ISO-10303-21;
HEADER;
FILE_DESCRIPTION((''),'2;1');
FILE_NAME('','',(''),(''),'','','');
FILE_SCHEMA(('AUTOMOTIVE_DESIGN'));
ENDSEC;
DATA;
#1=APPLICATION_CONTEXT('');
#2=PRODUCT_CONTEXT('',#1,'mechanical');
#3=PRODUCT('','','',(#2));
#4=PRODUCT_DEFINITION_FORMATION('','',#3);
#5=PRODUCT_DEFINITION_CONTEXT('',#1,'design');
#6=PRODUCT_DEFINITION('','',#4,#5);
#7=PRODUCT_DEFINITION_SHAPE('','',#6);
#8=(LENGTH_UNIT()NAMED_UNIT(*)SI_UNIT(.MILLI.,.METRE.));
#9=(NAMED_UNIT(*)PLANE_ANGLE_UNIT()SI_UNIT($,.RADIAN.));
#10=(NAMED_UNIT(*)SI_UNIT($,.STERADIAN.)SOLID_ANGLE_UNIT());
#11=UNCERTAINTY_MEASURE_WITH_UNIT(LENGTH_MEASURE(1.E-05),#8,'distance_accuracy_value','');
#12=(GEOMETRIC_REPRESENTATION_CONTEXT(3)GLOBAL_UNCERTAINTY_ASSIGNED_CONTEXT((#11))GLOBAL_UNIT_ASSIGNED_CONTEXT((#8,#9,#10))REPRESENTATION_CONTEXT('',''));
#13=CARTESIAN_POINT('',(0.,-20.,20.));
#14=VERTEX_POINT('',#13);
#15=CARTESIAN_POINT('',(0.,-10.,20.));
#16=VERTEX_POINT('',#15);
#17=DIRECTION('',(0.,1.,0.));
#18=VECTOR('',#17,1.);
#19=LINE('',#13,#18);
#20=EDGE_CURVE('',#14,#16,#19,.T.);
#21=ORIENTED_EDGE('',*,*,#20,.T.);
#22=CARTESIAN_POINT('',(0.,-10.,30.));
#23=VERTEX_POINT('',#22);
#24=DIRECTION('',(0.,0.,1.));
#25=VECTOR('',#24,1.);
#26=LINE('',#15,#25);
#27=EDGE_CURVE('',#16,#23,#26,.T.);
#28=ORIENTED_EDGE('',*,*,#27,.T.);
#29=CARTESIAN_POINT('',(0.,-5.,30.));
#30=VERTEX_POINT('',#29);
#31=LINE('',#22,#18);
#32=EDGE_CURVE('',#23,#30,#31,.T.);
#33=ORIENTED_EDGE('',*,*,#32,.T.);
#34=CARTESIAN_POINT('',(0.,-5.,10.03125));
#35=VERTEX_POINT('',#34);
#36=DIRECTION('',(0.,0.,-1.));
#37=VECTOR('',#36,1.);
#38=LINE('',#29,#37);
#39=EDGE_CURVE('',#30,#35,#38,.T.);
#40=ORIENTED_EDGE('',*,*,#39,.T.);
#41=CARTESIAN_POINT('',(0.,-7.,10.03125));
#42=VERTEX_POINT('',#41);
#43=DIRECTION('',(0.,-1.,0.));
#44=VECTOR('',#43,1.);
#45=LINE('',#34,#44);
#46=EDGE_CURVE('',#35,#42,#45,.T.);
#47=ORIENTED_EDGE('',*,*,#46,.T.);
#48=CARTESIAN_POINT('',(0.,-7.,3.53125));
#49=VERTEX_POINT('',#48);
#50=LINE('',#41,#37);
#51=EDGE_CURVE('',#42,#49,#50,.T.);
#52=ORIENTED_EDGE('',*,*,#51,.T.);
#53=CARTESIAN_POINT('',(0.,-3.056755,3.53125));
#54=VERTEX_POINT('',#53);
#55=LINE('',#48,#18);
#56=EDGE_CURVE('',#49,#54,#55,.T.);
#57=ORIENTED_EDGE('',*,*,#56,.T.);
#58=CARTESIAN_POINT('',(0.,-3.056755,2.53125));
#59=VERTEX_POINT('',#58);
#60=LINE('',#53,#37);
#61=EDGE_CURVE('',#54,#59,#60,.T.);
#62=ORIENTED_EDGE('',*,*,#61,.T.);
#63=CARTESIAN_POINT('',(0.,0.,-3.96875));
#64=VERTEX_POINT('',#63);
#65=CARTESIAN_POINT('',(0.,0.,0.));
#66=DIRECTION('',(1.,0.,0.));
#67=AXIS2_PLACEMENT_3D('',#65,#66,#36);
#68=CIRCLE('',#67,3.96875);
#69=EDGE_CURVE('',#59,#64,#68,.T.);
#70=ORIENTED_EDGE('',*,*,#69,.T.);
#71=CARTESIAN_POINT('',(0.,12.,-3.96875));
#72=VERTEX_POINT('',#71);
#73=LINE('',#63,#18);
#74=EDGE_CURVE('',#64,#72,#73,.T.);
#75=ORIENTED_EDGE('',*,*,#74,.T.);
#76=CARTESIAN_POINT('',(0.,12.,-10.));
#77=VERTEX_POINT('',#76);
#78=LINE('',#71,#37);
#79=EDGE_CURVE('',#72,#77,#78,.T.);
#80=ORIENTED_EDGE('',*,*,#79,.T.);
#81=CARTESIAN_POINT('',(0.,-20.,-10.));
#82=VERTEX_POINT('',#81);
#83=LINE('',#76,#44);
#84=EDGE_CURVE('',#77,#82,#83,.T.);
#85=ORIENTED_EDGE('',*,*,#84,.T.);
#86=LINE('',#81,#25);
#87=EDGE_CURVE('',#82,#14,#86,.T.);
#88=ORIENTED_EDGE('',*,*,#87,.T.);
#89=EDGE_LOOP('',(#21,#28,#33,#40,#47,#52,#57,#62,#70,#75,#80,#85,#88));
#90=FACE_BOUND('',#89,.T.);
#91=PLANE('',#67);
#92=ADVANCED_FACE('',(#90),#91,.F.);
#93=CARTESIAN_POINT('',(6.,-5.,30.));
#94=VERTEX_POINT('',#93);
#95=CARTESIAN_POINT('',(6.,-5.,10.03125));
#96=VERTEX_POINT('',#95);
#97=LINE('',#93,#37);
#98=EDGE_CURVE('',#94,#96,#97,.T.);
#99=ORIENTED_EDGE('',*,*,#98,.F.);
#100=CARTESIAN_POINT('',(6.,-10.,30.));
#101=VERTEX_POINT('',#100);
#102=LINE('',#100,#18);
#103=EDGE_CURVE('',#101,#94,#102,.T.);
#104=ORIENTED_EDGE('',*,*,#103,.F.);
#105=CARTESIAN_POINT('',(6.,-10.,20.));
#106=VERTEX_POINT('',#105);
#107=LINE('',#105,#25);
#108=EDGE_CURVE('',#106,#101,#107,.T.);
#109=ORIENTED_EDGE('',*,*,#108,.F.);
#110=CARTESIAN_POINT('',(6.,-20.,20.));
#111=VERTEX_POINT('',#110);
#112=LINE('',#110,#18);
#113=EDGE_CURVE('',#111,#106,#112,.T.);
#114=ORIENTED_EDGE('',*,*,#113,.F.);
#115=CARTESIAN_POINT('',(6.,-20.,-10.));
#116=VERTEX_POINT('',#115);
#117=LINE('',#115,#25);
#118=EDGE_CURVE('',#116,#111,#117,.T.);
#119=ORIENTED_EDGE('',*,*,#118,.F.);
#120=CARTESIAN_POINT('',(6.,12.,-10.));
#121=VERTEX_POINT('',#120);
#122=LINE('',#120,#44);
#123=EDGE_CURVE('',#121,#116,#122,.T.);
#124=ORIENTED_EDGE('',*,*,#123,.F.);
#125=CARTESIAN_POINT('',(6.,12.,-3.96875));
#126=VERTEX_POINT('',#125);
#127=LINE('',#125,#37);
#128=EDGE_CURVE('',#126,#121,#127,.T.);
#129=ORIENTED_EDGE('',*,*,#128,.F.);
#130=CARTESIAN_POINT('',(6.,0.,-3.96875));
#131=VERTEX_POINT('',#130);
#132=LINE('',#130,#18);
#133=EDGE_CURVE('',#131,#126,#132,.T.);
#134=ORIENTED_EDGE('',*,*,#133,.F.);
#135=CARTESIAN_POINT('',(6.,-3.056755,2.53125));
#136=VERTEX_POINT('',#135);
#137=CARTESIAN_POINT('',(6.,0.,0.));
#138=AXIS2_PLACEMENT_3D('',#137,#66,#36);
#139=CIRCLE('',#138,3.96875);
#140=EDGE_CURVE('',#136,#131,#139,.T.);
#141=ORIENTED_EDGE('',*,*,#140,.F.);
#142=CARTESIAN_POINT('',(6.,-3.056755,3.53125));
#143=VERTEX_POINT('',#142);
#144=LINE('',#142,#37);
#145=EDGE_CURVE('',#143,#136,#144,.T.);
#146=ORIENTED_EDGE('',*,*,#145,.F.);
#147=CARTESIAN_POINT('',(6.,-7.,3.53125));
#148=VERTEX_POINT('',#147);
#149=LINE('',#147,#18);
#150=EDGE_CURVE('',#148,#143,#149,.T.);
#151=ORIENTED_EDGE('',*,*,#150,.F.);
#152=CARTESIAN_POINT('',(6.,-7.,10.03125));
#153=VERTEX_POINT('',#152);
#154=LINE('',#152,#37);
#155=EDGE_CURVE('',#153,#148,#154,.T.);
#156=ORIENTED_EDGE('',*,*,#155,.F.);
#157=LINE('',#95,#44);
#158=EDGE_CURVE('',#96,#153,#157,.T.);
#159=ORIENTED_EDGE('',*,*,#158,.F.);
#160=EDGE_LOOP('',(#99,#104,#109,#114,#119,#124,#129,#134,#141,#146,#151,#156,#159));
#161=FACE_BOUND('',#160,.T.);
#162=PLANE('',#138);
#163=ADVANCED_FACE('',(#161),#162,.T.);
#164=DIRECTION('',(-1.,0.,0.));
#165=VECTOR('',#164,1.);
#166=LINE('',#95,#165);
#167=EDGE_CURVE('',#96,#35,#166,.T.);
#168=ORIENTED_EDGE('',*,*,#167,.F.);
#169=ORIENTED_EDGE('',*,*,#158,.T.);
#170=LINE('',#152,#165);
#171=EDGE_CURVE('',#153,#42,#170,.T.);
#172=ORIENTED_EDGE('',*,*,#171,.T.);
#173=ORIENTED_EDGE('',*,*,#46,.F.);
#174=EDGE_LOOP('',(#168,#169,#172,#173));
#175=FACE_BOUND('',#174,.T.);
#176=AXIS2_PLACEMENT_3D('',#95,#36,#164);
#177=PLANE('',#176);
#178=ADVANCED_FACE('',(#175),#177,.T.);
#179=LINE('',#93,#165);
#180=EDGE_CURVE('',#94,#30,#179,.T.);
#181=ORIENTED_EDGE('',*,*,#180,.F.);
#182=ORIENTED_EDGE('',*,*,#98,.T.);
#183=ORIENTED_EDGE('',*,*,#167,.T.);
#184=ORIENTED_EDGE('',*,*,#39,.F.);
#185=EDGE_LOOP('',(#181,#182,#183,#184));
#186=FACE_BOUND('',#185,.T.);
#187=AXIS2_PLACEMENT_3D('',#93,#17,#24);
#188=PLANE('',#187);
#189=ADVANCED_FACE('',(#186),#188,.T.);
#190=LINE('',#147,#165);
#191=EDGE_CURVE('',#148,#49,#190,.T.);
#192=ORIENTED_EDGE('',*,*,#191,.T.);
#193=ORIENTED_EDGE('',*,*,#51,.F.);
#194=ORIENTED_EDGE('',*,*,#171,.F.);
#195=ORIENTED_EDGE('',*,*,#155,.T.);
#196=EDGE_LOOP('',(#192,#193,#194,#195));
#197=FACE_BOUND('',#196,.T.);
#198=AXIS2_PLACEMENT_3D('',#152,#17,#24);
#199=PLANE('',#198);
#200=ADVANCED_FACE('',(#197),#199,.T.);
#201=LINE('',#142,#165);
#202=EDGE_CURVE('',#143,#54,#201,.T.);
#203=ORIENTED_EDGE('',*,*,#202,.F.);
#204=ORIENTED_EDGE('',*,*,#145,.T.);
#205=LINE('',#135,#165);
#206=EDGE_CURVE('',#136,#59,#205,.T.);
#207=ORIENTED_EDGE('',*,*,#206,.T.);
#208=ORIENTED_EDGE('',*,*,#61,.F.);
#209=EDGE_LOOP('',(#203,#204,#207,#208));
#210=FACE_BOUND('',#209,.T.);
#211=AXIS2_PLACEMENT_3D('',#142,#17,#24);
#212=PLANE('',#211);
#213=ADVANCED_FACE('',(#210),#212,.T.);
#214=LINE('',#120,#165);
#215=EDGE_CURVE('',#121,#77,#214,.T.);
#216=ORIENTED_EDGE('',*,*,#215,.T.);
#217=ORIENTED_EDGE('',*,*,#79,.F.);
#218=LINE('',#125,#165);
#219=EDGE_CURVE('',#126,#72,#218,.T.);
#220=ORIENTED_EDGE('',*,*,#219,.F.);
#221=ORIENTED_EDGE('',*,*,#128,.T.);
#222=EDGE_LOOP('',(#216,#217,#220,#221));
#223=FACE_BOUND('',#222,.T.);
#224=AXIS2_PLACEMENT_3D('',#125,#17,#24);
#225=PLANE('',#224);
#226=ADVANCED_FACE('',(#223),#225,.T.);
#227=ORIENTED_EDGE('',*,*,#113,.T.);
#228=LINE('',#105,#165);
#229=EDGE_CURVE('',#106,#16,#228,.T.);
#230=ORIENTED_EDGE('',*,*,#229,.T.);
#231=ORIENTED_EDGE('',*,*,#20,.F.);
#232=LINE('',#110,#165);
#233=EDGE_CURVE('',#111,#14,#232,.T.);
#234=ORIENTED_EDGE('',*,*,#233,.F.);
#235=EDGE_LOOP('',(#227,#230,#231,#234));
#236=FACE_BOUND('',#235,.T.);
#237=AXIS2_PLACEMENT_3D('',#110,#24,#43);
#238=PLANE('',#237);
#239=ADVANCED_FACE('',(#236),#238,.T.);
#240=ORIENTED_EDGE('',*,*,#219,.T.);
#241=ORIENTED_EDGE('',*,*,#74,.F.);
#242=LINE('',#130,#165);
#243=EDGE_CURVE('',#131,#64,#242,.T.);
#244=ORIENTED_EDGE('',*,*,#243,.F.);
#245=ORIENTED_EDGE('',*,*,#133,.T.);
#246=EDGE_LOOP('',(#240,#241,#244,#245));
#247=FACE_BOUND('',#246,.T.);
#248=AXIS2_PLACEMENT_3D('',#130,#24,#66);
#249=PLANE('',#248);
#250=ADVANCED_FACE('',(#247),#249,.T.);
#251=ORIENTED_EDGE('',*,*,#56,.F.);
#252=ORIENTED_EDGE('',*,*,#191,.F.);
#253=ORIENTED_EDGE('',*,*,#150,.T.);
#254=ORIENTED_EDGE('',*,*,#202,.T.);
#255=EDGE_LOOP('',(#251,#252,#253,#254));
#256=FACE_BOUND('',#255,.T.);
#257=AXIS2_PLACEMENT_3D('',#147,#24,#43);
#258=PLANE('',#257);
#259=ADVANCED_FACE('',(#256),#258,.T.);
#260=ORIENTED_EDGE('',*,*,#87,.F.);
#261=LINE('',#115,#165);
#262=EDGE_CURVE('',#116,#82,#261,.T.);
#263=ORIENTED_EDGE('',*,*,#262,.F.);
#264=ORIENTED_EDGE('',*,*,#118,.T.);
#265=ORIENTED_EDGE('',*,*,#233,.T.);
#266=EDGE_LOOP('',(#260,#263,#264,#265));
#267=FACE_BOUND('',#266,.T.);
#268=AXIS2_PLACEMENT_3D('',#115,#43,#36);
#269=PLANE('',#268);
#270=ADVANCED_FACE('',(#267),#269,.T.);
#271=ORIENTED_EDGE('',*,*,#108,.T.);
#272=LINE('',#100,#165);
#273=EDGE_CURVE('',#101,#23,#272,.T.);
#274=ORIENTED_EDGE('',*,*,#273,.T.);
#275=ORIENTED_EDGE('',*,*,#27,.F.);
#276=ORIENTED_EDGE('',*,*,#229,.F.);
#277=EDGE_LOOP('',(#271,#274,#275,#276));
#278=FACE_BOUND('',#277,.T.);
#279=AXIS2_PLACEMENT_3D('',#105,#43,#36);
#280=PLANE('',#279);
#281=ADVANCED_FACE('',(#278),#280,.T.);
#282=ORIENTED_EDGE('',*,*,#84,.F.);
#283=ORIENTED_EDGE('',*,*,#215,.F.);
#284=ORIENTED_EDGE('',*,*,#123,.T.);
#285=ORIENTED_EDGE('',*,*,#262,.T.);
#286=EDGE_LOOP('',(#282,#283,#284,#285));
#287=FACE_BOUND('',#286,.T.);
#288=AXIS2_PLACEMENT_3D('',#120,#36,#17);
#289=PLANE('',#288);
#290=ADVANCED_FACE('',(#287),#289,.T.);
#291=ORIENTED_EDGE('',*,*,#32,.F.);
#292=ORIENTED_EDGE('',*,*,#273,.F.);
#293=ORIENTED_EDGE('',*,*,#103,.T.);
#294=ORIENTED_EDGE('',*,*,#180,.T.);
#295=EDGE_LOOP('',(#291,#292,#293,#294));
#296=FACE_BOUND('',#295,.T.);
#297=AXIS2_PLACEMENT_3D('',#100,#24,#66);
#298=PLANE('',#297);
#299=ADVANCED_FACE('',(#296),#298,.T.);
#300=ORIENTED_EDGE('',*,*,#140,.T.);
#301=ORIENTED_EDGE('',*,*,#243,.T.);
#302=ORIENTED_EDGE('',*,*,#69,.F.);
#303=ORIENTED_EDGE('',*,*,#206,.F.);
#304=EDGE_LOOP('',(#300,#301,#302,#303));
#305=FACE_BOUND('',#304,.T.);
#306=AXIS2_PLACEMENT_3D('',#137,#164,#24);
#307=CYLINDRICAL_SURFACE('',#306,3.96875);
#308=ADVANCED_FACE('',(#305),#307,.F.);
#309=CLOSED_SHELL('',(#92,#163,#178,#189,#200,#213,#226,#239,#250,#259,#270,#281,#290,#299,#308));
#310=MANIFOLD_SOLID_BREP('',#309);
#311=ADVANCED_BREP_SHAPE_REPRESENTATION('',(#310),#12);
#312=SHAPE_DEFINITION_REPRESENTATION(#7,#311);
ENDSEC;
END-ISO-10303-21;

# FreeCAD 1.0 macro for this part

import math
import FreeCAD as App
import Part
import Sketcher
from FreeCAD import Vector
Q = App.Units.Quantity

doc = App.newDocument("Part")
body = doc.addObject("PartDesign::Body", "Body")

# Sketch on YZ plane
sketch1 = body.newObject("Sketcher::SketchObject", "Sketch")
sketch1.AttachmentSupport = (doc.getObject("YZ_Plane"), [""])
sketch1.MapMode = "FlatFace"
sketch1.addGeometry(Part.LineSegment(Vector(12, -4, 0), Vector(0, -4, 0)), False)
sketch1.addGeometry(Part.ArcOfCircle(Part.Circle(Vector(0, 0, 0), Vector(0, 0, 1), 4), math.radians(140), math.radians(270)), False)
sketch1.addGeometry(Part.LineSegment(Vector(-3.1, 2.5, 0), Vector(-3.1, 3.5, 0)), False)
sketch1.addGeometry(Part.LineSegment(Vector(-3.1, 3.5, 0), Vector(-7, 3.5, 0)), False)
sketch1.addGeometry(Part.LineSegment(Vector(-7, 3.5, 0), Vector(-7, 10, 0)), False)
sketch1.addGeometry(Part.LineSegment(Vector(-7, 10, 0), Vector(-5, 10, 0)), False)
sketch1.addGeometry(Part.LineSegment(Vector(-5, 10, 0), Vector(-5, 30, 0)), False)
sketch1.addGeometry(Part.LineSegment(Vector(-5, 30, 0), Vector(-10, 30, 0)), False)
sketch1.addGeometry(Part.LineSegment(Vector(-10, 30, 0), Vector(-10, 20, 0)), False)
sketch1.addGeometry(Part.LineSegment(Vector(-10, 20, 0), Vector(-20, 20, 0)), False)
sketch1.addGeometry(Part.LineSegment(Vector(-20, 20, 0), Vector(-20, -10, 0)), False)
sketch1.addGeometry(Part.LineSegment(Vector(-20, -10, 0), Vector(12, -10, 0)), False)
sketch1.addGeometry(Part.LineSegment(Vector(12, -10, 0), Vector(12, -4, 0)), False)
sketch1.addConstraint(Sketcher.Constraint("Tangent", 0, 2, 1, 2))
sketch1.addConstraint(Sketcher.Constraint("Coincident", 1, 1, 2, 1))
sketch1.addConstraint(Sketcher.Constraint("Coincident", 2, 2, 3, 1))
sketch1.addConstraint(Sketcher.Constraint("Coincident", 3, 2, 4, 1))
sketch1.addConstraint(Sketcher.Constraint("Coincident", 4, 2, 5, 1))
sketch1.addConstraint(Sketcher.Constraint("Coincident", 5, 2, 6, 1))
sketch1.addConstraint(Sketcher.Constraint("Coincident", 6, 2, 7, 1))
sketch1.addConstraint(Sketcher.Constraint("Coincident", 7, 2, 8, 1))
sketch1.addConstraint(Sketcher.Constraint("Coincident", 8, 2, 9, 1))
sketch1.addConstraint(Sketcher.Constraint("Coincident", 9, 2, 10, 1))
sketch1.addConstraint(Sketcher.Constraint("Coincident", 10, 2, 11, 1))
sketch1.addConstraint(Sketcher.Constraint("Coincident", 11, 2, 12, 1))
sketch1.addConstraint(Sketcher.Constraint("Coincident", 12, 2, 0, 1))
sketch1.addConstraint(Sketcher.Constraint("Horizontal", 0))
sketch1.addConstraint(Sketcher.Constraint("Vertical", 2))
sketch1.addConstraint(Sketcher.Constraint("Horizontal", 3))
sketch1.addConstraint(Sketcher.Constraint("Vertical", 4))
sketch1.addConstraint(Sketcher.Constraint("Horizontal", 5))
sketch1.addConstraint(Sketcher.Constraint("Vertical", 6))
sketch1.addConstraint(Sketcher.Constraint("Horizontal", 7))
sketch1.addConstraint(Sketcher.Constraint("Vertical", 8))
sketch1.addConstraint(Sketcher.Constraint("Horizontal", 9))
sketch1.addConstraint(Sketcher.Constraint("Vertical", 10))
sketch1.addConstraint(Sketcher.Constraint("Horizontal", 11))
sketch1.addConstraint(Sketcher.Constraint("Vertical", 12))
sketch1.addConstraint(Sketcher.Constraint("Coincident", 1, 3, -1, 1))
sketch1.addConstraint(Sketcher.Constraint("Equal", 9, 8))
sketch1.addConstraint(Sketcher.Constraint("DistanceX", 0, 2, 0, 1, Q("12 mm")))
sketch1.addConstraint(Sketcher.Constraint("DistanceX", 5, 1, 5, 2, Q("2 mm")))
sketch1.addConstraint(Sketcher.Constraint("DistanceX", 7, 2, 7, 1, Q("5 mm")))
sketch1.addConstraint(Sketcher.Constraint("DistanceX", 9, 2, 9, 1, Q("10 mm")))
sketch1.addConstraint(Sketcher.Constraint("DistanceX", 11, 1, 11, 2, Q("32 mm")))
sketch1.addConstraint(Sketcher.Constraint("DistanceY", 2, 1, 2, 2, Q("1 mm")))
sketch1.addConstraint(Sketcher.Constraint("DistanceY", 10, 2, 10, 1, Q("30 mm")))
sketch1.addConstraint(Sketcher.Constraint("DistanceY", 4, 1, 4, 2, Q("6.5 mm")))
sketch1.addConstraint(Sketcher.Constraint("DistanceY", -1, 1, 6, 2, Q("30 mm")))
sketch1.addConstraint(Sketcher.Constraint("DistanceY", 0, 2, 4, 2, Q("14 mm")))
sketch1.addConstraint(Sketcher.Constraint("Radius", 1, Q("3.96875 mm")))
pad1 = body.newObject("PartDesign::Pad", "Pad")
pad1.Profile = sketch1
pad1.Length = 6

doc.recompute()
